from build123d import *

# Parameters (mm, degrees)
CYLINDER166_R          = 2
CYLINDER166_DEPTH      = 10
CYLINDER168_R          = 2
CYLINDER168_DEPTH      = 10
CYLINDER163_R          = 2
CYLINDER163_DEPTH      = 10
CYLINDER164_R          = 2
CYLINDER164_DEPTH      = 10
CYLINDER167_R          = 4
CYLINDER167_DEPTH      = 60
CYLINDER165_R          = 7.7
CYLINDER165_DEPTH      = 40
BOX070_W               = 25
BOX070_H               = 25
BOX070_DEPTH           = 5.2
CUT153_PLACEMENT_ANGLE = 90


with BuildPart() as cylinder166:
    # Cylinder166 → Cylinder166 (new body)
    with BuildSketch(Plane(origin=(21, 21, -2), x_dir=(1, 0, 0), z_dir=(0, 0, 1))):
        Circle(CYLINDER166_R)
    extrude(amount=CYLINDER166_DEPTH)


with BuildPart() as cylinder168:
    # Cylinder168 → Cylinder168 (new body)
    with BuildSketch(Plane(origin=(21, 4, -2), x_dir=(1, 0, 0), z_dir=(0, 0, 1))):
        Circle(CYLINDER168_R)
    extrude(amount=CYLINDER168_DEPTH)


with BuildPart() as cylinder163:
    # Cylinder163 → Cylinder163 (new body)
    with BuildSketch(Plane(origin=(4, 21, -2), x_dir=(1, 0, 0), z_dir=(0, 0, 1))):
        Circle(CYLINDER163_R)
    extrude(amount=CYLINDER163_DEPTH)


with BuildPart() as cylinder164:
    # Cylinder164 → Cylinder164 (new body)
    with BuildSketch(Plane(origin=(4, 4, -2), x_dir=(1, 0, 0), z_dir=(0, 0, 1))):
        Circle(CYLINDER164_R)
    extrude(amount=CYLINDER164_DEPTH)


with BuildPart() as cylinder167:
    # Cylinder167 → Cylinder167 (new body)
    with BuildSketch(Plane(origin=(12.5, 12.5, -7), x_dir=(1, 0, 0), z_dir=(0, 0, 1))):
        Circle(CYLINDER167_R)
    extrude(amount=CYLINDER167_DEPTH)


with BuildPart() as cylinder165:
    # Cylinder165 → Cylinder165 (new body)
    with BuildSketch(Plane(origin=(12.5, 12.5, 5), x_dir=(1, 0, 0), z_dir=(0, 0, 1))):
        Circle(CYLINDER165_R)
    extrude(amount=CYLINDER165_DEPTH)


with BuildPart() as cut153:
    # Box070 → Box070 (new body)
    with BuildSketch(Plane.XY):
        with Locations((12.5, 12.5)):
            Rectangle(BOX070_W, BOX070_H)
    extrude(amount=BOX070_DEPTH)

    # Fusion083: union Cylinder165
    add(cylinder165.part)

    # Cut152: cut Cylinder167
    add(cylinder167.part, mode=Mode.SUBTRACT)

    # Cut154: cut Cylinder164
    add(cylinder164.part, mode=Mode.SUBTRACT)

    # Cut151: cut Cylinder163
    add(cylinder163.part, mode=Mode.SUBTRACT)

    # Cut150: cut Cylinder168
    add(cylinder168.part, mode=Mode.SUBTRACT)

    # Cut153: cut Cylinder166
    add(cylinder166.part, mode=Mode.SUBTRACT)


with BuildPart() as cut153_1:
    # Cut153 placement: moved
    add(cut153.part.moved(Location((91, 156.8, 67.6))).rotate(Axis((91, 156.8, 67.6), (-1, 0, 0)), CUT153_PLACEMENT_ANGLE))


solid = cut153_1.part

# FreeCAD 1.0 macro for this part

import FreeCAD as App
import Part
import Sketcher
from FreeCAD import Vector

doc = App.newDocument("Part")
params = doc.addObject("Spreadsheet::Sheet", "Params")
for row, (alias, value) in enumerate([
    ("sketch1_diameter", "4 mm"),
    ("pad1_length", "10 mm"),
    ("sketch2_diameter", "4 mm"),
    ("pad2_length", "10 mm"),
    ("sketch3_diameter", "4 mm"),
    ("pad3_length", "10 mm"),
    ("sketch4_diameter", "4 mm"),
    ("pad4_length", "10 mm"),
    ("sketch5_diameter", "8 mm"),
    ("pad5_length", "60 mm"),
    ("sketch6_diameter", "15.4 mm"),
    ("pad6_length", "40 mm"),
    ("sketch7_width", "25 mm"),
    ("pad7_length", "5.2 mm"),
], start=1):
    params.set(f"A{row}", alias)
    params.set(f"B{row}", "=" + value)
    params.setAlias(f"B{row}", alias)

body = doc.addObject("PartDesign::Body", "Body")

sketch1 = body.newObject("Sketcher::SketchObject", "Sketch")
sketch1.AttachmentSupport = (doc.getObject("XY_Plane"), [""])
sketch1.MapMode = "FlatFace"
sketch1.AttachmentOffset = App.Placement(Vector(0, 0, -2), App.Rotation())
sketch1.addGeometry(Part.Circle(Vector(21, 21, 0), Vector(0, 0, 1), 2), False)
sketch1.addConstraint(Sketcher.Constraint("Diameter", 0, 4.0))
sketch1.addConstraint(Sketcher.Constraint("DistanceX", -1, 1, 0, 3, 21.0))
sketch1.addConstraint(Sketcher.Constraint("DistanceY", -1, 1, 0, 3, 21.0))
sketch1.setExpression("Constraints[0]", "Params.sketch1_diameter")
pad1 = body.newObject("PartDesign::Pad", "Pad")
pad1.Profile = sketch1
pad1.setExpression("Length", "Params.pad1_length")
body2 = doc.addObject("PartDesign::Body", "Body001")

sketch2 = body2.newObject("Sketcher::SketchObject", "Sketch001")
sketch2.AttachmentSupport = (doc.getObject("XY_Plane001"), [""])
sketch2.MapMode = "FlatFace"
sketch2.AttachmentOffset = App.Placement(Vector(0, 0, -2), App.Rotation())
sketch2.addGeometry(Part.Circle(Vector(21, 4, 0), Vector(0, 0, 1), 2), False)
sketch2.addConstraint(Sketcher.Constraint("Diameter", 0, 4.0))
sketch2.addConstraint(Sketcher.Constraint("DistanceX", -1, 1, 0, 3, 21.0))
sketch2.addConstraint(Sketcher.Constraint("DistanceY", -1, 1, 0, 3, 4.0))
sketch2.setExpression("Constraints[0]", "Params.sketch2_diameter")
pad2 = body2.newObject("PartDesign::Pad", "Pad001")
pad2.Profile = sketch2
pad2.setExpression("Length", "Params.pad2_length")
body3 = doc.addObject("PartDesign::Body", "Body002")

sketch3 = body3.newObject("Sketcher::SketchObject", "Sketch002")
sketch3.AttachmentSupport = (doc.getObject("XY_Plane002"), [""])
sketch3.MapMode = "FlatFace"
sketch3.AttachmentOffset = App.Placement(Vector(0, 0, -2), App.Rotation())
sketch3.addGeometry(Part.Circle(Vector(4, 21, 0), Vector(0, 0, 1), 2), False)
sketch3.addConstraint(Sketcher.Constraint("Diameter", 0, 4.0))
sketch3.addConstraint(Sketcher.Constraint("DistanceX", -1, 1, 0, 3, 4.0))
sketch3.addConstraint(Sketcher.Constraint("DistanceY", -1, 1, 0, 3, 21.0))
sketch3.setExpression("Constraints[0]", "Params.sketch3_diameter")
pad3 = body3.newObject("PartDesign::Pad", "Pad002")
pad3.Profile = sketch3
pad3.setExpression("Length", "Params.pad3_length")
body4 = doc.addObject("PartDesign::Body", "Body003")

sketch4 = body4.newObject("Sketcher::SketchObject", "Sketch003")
sketch4.AttachmentSupport = (doc.getObject("XY_Plane003"), [""])
sketch4.MapMode = "FlatFace"
sketch4.AttachmentOffset = App.Placement(Vector(0, 0, -2), App.Rotation())
sketch4.addGeometry(Part.Circle(Vector(4, 4, 0), Vector(0, 0, 1), 2), False)
sketch4.addConstraint(Sketcher.Constraint("Diameter", 0, 4.0))
sketch4.addConstraint(Sketcher.Constraint("DistanceX", -1, 1, 0, 3, 4.0))
sketch4.addConstraint(Sketcher.Constraint("DistanceY", -1, 1, 0, 3, 4.0))
sketch4.setExpression("Constraints[0]", "Params.sketch4_diameter")
pad4 = body4.newObject("PartDesign::Pad", "Pad003")
pad4.Profile = sketch4
pad4.setExpression("Length", "Params.pad4_length")
body5 = doc.addObject("PartDesign::Body", "Body004")

sketch5 = body5.newObject("Sketcher::SketchObject", "Sketch004")
sketch5.AttachmentSupport = (doc.getObject("XY_Plane004"), [""])
sketch5.MapMode = "FlatFace"
sketch5.AttachmentOffset = App.Placement(Vector(0, 0, -7), App.Rotation())
sketch5.addGeometry(Part.Circle(Vector(12.5, 12.5, 0), Vector(0, 0, 1), 4), False)
sketch5.addConstraint(Sketcher.Constraint("Diameter", 0, 8.0))
sketch5.addConstraint(Sketcher.Constraint("DistanceX", -1, 1, 0, 3, 12.5))
sketch5.addConstraint(Sketcher.Constraint("DistanceY", -1, 1, 0, 3, 12.5))
sketch5.setExpression("Constraints[0]", "Params.sketch5_diameter")
pad5 = body5.newObject("PartDesign::Pad", "Pad004")
pad5.Profile = sketch5
pad5.setExpression("Length", "Params.pad5_length")
body6 = doc.addObject("PartDesign::Body", "Body005")

sketch6 = body6.newObject("Sketcher::SketchObject", "Sketch005")
sketch6.AttachmentSupport = (doc.getObject("XY_Plane005"), [""])
sketch6.MapMode = "FlatFace"
sketch6.AttachmentOffset = App.Placement(Vector(0, 0, 5), App.Rotation())
sketch6.addGeometry(Part.Circle(Vector(12.5, 12.5, 0), Vector(0, 0, 1), 7.7), False)
sketch6.addConstraint(Sketcher.Constraint("Diameter", 0, 15.4))
sketch6.addConstraint(Sketcher.Constraint("DistanceX", -1, 1, 0, 3, 12.5))
sketch6.addConstraint(Sketcher.Constraint("DistanceY", -1, 1, 0, 3, 12.5))
sketch6.setExpression("Constraints[0]", "Params.sketch6_diameter")
pad6 = body6.newObject("PartDesign::Pad", "Pad005")
pad6.Profile = sketch6
pad6.setExpression("Length", "Params.pad6_length")
body7 = doc.addObject("PartDesign::Body", "Body006")

sketch7 = body7.newObject("Sketcher::SketchObject", "Sketch006")
sketch7.AttachmentSupport = (doc.getObject("XY_Plane006"), [""])
sketch7.MapMode = "FlatFace"
sketch7.addGeometry(Part.LineSegment(Vector(0, 25, 0), Vector(0, 0, 0)), False)
sketch7.addGeometry(Part.LineSegment(Vector(0, 0, 0), Vector(25, 0, 0)), False)
sketch7.addGeometry(Part.LineSegment(Vector(25, 0, 0), Vector(25, 25, 0)), False)
sketch7.addGeometry(Part.LineSegment(Vector(25, 25, 0), Vector(0, 25, 0)), False)
sketch7.addConstraint(Sketcher.Constraint("Coincident", 0, 2, 1, 1))
sketch7.addConstraint(Sketcher.Constraint("Coincident", 1, 2, 2, 1))
sketch7.addConstraint(Sketcher.Constraint("Coincident", 2, 2, 3, 1))
sketch7.addConstraint(Sketcher.Constraint("Coincident", 3, 2, 0, 1))
sketch7.addConstraint(Sketcher.Constraint("Vertical", 0))
sketch7.addConstraint(Sketcher.Constraint("Horizontal", 1))
sketch7.addConstraint(Sketcher.Constraint("Vertical", 2))
sketch7.addConstraint(Sketcher.Constraint("Horizontal", 3))
sketch7.addConstraint(Sketcher.Constraint("Coincident", 0, 2, -1, 1))
sketch7.addConstraint(Sketcher.Constraint("Equal", 3, 0))
sketch7.addConstraint(Sketcher.Constraint("DistanceX", 1, 1, 1, 2, 25.0))
sketch7.setExpression("Constraints[10]", "Params.sketch7_width")
pad7 = body7.newObject("PartDesign::Pad", "Pad006")
pad7.Profile = sketch7
pad7.setExpression("Length", "Params.pad7_length")
doc.recompute()

boolean = body7.newObject("PartDesign::Boolean", "Boolean")
boolean.Type = "Fuse"
boolean.addObjects([body6])
doc.recompute()

boolean2 = body7.newObject("PartDesign::Boolean", "Boolean001")
boolean2.Type = "Cut"
boolean2.addObjects([body5])
doc.recompute()

boolean3 = body7.newObject("PartDesign::Boolean", "Boolean002")
boolean3.Type = "Cut"
boolean3.addObjects([body4])
doc.recompute()

boolean4 = body7.newObject("PartDesign::Boolean", "Boolean003")
boolean4.Type = "Cut"
boolean4.addObjects([body3])
doc.recompute()

boolean5 = body7.newObject("PartDesign::Boolean", "Boolean004")
boolean5.Type = "Cut"
boolean5.addObjects([body2])
doc.recompute()

boolean6 = body7.newObject("PartDesign::Boolean", "Boolean005")
boolean6.Type = "Cut"
boolean6.addObjects([body])
body8 = doc.addObject("PartDesign::Body", "Body007")
doc.recompute()

body7.Placement = App.Placement(Vector(91, 156.8, 67.6), App.Rotation(Vector(-1, 0, 0), 90))
boolean7 = body8.newObject("PartDesign::Boolean", "Boolean006")
boolean7.Type = "Fuse"
boolean7.addObjects([body7])

doc.recompute()
